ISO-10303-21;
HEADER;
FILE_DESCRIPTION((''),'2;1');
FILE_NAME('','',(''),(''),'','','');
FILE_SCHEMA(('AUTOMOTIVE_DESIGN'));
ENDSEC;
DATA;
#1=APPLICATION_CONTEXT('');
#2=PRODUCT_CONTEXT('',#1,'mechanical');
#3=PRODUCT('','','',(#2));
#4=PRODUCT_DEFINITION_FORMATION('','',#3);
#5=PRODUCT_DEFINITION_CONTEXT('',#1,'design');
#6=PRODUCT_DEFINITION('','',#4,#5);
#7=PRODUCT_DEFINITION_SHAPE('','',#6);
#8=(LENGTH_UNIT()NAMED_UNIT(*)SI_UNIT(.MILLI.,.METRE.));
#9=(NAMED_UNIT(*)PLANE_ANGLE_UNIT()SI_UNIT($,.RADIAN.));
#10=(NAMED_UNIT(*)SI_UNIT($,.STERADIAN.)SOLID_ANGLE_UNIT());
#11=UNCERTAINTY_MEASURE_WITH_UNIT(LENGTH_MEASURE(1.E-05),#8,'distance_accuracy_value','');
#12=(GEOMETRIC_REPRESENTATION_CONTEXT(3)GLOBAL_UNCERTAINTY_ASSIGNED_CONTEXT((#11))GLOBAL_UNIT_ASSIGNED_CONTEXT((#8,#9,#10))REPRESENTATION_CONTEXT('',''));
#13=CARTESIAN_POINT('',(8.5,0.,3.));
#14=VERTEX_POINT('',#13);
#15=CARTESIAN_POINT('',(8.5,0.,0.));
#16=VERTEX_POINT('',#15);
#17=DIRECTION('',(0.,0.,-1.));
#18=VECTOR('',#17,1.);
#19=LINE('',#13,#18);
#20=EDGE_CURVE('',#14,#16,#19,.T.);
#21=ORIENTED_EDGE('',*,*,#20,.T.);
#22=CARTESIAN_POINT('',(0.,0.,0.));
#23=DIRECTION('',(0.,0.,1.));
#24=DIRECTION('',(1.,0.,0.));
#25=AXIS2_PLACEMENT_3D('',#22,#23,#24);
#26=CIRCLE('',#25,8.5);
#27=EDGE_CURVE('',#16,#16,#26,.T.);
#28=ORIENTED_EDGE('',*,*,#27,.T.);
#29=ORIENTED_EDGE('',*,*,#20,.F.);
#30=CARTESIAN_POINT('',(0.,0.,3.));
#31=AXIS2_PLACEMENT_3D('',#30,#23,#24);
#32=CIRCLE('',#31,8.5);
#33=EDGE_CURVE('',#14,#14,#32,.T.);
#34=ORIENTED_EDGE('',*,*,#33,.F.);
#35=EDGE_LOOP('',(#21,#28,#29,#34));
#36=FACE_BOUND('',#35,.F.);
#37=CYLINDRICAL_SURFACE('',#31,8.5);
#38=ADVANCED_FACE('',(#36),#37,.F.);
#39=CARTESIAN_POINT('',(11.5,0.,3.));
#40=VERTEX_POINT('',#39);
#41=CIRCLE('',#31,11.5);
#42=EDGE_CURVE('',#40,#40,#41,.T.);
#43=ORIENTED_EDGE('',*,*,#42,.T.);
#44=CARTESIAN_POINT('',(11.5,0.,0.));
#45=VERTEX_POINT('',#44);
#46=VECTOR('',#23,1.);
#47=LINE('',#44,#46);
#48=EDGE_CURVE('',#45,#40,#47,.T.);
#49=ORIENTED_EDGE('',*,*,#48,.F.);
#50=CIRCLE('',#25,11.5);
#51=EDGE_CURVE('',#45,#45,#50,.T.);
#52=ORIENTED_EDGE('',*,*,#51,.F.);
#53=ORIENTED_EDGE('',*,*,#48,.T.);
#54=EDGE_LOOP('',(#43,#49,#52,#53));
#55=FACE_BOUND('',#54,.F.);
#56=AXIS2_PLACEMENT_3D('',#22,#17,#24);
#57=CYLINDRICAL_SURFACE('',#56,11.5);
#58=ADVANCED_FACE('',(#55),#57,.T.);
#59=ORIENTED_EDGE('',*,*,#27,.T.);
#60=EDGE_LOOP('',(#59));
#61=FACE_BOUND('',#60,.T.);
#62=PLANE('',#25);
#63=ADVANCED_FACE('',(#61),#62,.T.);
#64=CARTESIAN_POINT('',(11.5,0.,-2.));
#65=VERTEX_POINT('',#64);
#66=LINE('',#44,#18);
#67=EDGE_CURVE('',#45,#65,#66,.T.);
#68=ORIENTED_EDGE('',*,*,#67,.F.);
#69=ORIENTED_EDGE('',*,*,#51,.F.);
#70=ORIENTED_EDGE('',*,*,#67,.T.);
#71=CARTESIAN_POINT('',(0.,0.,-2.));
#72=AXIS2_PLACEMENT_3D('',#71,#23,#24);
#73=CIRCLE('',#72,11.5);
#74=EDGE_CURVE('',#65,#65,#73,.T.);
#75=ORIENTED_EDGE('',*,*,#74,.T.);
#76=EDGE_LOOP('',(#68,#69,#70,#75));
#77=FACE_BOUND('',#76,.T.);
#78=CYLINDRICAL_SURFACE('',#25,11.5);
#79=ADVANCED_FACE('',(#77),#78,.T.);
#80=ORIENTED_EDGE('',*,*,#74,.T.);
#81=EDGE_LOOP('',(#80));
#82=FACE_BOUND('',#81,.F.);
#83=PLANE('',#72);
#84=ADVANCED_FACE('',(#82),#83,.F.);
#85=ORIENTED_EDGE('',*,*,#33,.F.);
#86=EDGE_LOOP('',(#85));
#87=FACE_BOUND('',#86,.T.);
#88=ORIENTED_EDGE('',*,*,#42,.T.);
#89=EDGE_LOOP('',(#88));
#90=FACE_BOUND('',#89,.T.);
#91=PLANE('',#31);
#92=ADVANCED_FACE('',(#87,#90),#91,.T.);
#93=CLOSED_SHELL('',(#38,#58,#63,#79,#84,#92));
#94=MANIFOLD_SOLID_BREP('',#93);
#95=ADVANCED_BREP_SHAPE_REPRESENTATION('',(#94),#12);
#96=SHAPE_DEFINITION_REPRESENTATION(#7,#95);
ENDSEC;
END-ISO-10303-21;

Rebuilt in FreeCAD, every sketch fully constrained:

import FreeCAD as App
import Part
import Sketcher
Q = App.Units.Quantity

doc = App.newDocument("Part")
body = doc.addObject("PartDesign::Body", "Body")

sketch1 = body.newObject("Sketcher::SketchObject", "Sketch")
sketch1.AttachmentSupport = (doc.getObject("XY_Plane"), [""])
sketch1.MapMode = "FlatFace"
sketch1.addGeometry(Part.Circle(App.Vector(0, 0, 0), App.Vector(0, 0, 1), 11.5), False)
sketch1.addConstraint([
    Sketcher.Constraint("Coincident", 0, 3, -1, 1),
    Sketcher.Constraint("Diameter", 0, Q("23 mm")),
])
pad1 = body.newObject("PartDesign::Pad", "Pad")
pad1.Profile = sketch1
pad1.Length = 2
pad1.Reversed = True

sketch2 = body.newObject("Sketcher::SketchObject", "Sketch001")
sketch2.AttachmentSupport = (doc.getObject("XY_Plane"), [""])
sketch2.MapMode = "FlatFace"
sketch2.addGeometry(Part.Circle(App.Vector(0, 0, 0), App.Vector(0, 0, 1), 11.5), False)
sketch2.addConstraint([
    Sketcher.Constraint("Coincident", 0, 3, -1, 1),
    Sketcher.Constraint("Diameter", 0, Q("23 mm")),
])
pad2 = body.newObject("PartDesign::Pad", "Pad001")
pad2.Profile = sketch2
pad2.Length = 3

sketch3 = body.newObject("Sketcher::SketchObject", "Sketch002")
sketch3.AttachmentSupport = (doc.getObject("XY_Plane"), [""])
sketch3.MapMode = "FlatFace"
sketch3.AttachmentOffset = App.Placement(App.Vector(0, 0, 3), App.Rotation())
sketch3.addGeometry(Part.Circle(App.Vector(0, 0, 0), App.Vector(0, 0, 1), 8.5), False)
sketch3.addConstraint([
    Sketcher.Constraint("Coincident", 0, 3, -1, 1),
    Sketcher.Constraint("Diameter", 0, Q("17 mm")),
])
pocket1 = body.newObject("PartDesign::Pocket", "Pocket")
pocket1.Profile = sketch3
pocket1.Length = 3

doc.recompute()
